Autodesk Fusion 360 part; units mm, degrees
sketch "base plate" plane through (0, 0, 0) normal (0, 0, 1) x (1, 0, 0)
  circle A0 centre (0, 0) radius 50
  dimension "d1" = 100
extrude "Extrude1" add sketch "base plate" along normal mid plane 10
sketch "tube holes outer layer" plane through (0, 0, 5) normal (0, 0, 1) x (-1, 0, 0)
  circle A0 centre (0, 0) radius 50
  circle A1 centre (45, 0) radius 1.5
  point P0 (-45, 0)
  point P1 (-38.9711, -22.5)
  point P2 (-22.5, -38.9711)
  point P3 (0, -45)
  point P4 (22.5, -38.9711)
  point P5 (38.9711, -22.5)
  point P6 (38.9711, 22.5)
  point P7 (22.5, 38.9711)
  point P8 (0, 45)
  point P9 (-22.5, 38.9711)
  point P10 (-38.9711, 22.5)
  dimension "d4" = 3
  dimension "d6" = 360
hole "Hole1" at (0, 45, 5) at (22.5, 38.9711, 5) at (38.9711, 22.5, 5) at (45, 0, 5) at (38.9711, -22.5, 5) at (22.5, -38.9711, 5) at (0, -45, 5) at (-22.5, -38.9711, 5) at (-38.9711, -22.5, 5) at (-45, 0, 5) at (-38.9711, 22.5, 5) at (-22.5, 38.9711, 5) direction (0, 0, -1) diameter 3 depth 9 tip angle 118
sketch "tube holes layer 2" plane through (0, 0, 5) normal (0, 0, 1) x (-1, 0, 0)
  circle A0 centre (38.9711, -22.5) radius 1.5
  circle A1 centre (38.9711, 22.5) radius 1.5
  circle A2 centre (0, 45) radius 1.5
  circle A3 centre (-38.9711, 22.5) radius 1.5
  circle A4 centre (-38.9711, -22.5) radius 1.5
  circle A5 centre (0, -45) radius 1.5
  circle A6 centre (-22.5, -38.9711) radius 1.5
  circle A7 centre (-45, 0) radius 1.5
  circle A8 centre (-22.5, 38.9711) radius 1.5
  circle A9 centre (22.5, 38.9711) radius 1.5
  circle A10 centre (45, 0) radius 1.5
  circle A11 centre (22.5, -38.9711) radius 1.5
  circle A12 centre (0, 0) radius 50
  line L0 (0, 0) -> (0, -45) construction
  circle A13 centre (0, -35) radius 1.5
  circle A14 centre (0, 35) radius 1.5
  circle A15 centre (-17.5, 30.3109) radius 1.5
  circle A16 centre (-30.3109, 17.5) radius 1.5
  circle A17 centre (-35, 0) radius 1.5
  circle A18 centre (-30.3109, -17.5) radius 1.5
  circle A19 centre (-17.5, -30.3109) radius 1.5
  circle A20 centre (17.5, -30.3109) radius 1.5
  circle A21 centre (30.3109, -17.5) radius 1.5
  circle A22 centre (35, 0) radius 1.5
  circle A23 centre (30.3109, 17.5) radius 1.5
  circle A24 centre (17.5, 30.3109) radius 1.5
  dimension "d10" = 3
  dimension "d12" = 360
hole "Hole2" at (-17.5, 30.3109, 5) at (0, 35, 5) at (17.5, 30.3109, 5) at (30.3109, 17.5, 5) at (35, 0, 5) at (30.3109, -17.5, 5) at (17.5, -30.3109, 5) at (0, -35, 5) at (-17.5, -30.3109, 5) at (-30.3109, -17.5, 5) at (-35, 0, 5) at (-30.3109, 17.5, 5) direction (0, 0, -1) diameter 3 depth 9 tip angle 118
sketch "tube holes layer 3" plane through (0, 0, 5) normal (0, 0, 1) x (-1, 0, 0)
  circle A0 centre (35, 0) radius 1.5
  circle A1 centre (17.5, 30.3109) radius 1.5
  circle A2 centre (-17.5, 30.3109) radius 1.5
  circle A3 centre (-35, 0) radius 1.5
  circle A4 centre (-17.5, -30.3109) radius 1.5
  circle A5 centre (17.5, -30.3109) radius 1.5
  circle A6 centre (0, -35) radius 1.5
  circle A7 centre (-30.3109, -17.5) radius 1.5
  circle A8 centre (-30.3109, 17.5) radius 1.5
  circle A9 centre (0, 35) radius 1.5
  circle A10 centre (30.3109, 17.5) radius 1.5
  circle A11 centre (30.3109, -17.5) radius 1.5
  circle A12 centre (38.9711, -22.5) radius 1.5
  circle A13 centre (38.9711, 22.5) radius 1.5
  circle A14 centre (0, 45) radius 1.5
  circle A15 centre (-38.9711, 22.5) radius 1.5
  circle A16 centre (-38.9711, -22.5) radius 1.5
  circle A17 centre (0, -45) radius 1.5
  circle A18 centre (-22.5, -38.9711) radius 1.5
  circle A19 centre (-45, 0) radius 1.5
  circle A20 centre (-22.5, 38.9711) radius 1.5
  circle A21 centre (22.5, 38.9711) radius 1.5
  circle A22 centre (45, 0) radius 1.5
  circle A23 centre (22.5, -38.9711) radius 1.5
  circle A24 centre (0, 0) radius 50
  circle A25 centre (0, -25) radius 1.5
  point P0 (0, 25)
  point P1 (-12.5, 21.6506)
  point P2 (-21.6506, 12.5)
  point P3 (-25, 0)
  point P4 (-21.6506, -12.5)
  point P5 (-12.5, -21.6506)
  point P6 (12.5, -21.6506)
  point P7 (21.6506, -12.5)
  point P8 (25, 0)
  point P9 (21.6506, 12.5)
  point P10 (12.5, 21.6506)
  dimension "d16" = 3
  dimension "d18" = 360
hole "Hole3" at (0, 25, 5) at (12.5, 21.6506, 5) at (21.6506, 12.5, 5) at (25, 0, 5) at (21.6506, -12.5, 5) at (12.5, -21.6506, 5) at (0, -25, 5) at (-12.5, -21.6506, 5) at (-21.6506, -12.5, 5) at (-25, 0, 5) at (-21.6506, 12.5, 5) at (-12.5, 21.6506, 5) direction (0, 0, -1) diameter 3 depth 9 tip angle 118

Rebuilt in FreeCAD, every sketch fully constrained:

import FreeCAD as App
import Part
import Sketcher

V = App.Vector

doc = App.newDocument("Part")
params = doc.addObject("Spreadsheet::Sheet", "Params")
for row, (alias, value) in enumerate([
    ("sketch1_diameter", "100 mm"),
    ("pad1_length", "10 mm"),
    ("sketch2_diameter", "3 mm"),
    ("hole_diameter", "3 mm"),
    ("hole_depth", "9 mm"),
    ("sketch3_diameter", "3 mm"),
    ("hole2_diameter", "3 mm"),
    ("hole2_depth", "9 mm"),
    ("sketch4_diameter", "3 mm"),
    ("hole3_diameter", "3 mm"),
    ("hole3_depth", "9 mm"),
], start=1):
    params.set(f"A{row}", alias)
    params.set(f"B{row}", "=" + value)
    params.setAlias(f"B{row}", alias)

body = doc.addObject("PartDesign::Body", "Body")

# Sketch on XY plane
sketch1 = body.newObject("Sketcher::SketchObject", "Sketch")
sketch1.AttachmentSupport = (doc.getObject("XY_Plane"), [""])
sketch1.MapMode = "FlatFace"
sketch1.addGeometry(Part.Circle(V(0, 0, 0), V(0, 0, 1), 50), False)
sketch1.addConstraint([
    Sketcher.Constraint("Coincident", 0, 3, -1, 1),
    Sketcher.Constraint("Diameter", 0, 100.0),
])
sketch1.setExpression("Constraints[1]", "Params.sketch1_diameter")
pad1 = body.newObject("PartDesign::Pad", "Pad")
pad1.Profile = sketch1
pad1.setExpression("Length", "Params.pad1_length")
pad1.Midplane = True

# Sketch on XY plane
sketch2 = body.newObject("Sketcher::SketchObject", "Sketch001")
sketch2.AttachmentSupport = (doc.getObject("XY_Plane"), [""])
sketch2.MapMode = "FlatFace"
sketch2.AttachmentOffset = App.Placement(V(0, 0, 5), App.Rotation())
sketch2.addGeometry([
    Part.Circle(V(0, 45, 0), V(0, 0, 1), 1.5),  # 0
    Part.Circle(V(22.5, 39, 0), V(0, 0, 1), 1.5),  # 1
    Part.Circle(V(39, 22.5, 0), V(0, 0, 1), 1.5),  # 2
    Part.Circle(V(45, 0, 0), V(0, 0, 1), 1.5),  # 3
    Part.Circle(V(39, -22.5, 0), V(0, 0, 1), 1.5),  # 4
    Part.Circle(V(22.5, -39, 0), V(0, 0, 1), 1.5),  # 5
    Part.Circle(V(0, -45, 0), V(0, 0, 1), 1.5),  # 6
    Part.Circle(V(-22.5, -39, 0), V(0, 0, 1), 1.5),  # 7
    Part.Circle(V(-39, -22.5, 0), V(0, 0, 1), 1.5),  # 8
    Part.Circle(V(-45, 0, 0), V(0, 0, 1), 1.5),  # 9
    Part.Circle(V(-39, 22.5, 0), V(0, 0, 1), 1.5),  # 10
    Part.Circle(V(-22.5, 39, 0), V(0, 0, 1), 1.5),  # 11
], False)
sketch2.addConstraint([
    Sketcher.Constraint("Equal", 0, 1),
    Sketcher.Constraint("Equal", 1, 2),
    Sketcher.Constraint("Equal", 2, 3),
    Sketcher.Constraint("Equal", 3, 4),
    Sketcher.Constraint("Equal", 4, 5),
    Sketcher.Constraint("Equal", 5, 6),
    Sketcher.Constraint("Equal", 6, 7),
    Sketcher.Constraint("Equal", 7, 8),
    Sketcher.Constraint("Equal", 8, 9),
    Sketcher.Constraint("Equal", 9, 10),
    Sketcher.Constraint("Equal", 10, 11),
    Sketcher.Constraint("Symmetric", 0, 3, 6, 3, -1, 1),
    Sketcher.Constraint("Symmetric", 1, 3, 7, 3, -1, 1),
    Sketcher.Constraint("Symmetric", 2, 3, 8, 3, -1, 1),
    Sketcher.Constraint("Symmetric", 3, 3, 9, 3, -1, 1),
    Sketcher.Constraint("Symmetric", 4, 3, 10, 3, -1, 1),
    Sketcher.Constraint("Symmetric", 5, 3, 11, 3, -1, 1),
    Sketcher.Constraint("Symmetric", 5, 3, 7, 3, -2),
    Sketcher.Constraint("Symmetric", 4, 3, 8, 3, -2),
    Sketcher.Constraint("PointOnObject", 0, 3, -2),
    Sketcher.Constraint("PointOnObject", 3, 3, -1),
    Sketcher.Constraint("Diameter", 0, 3.0),
    Sketcher.Constraint("DistanceY", -1, 1, 0, 3, 45.0),
    Sketcher.Constraint("DistanceX", -1, 1, 3, 3, 45.0),
    Sketcher.Constraint("DistanceY", 4, 3, 2, 3, 45.0),
    Sketcher.Constraint("DistanceX", 7, 3, 5, 3, 45.0),
    Sketcher.Constraint("DistanceY", -1, 1, 1, 3, 38.971),
    Sketcher.Constraint("DistanceX", -1, 1, 2, 3, 38.971),
])
sketch2.setExpression("Constraints[21]", "Params.sketch2_diameter")
doc.recompute()
hole = body.newObject("PartDesign::Hole", "Hole")
hole.Profile = sketch2
hole.ThreadType = "None"
hole.setExpression("Diameter", "Params.hole_diameter")
hole.DepthType = "Dimension"
hole.setExpression("Depth", "Params.hole_depth")
hole.DrillPoint = "Angled"
hole.DrillPointAngle = 118

# Sketch on XY plane
sketch3 = body.newObject("Sketcher::SketchObject", "Sketch002")
sketch3.AttachmentSupport = (doc.getObject("XY_Plane"), [""])
sketch3.MapMode = "FlatFace"
sketch3.AttachmentOffset = App.Placement(V(0, 0, 5), App.Rotation())
sketch3.addGeometry([
    Part.Circle(V(-17.5, 30.3, 0), V(0, 0, 1), 1.5),  # 0
    Part.Circle(V(0, 35, 0), V(0, 0, 1), 1.5),  # 1
    Part.Circle(V(17.5, 30.3, 0), V(0, 0, 1), 1.5),  # 2
    Part.Circle(V(30.3, 17.5, 0), V(0, 0, 1), 1.5),  # 3
    Part.Circle(V(35, 0, 0), V(0, 0, 1), 1.5),  # 4
    Part.Circle(V(30.3, -17.5, 0), V(0, 0, 1), 1.5),  # 5
    Part.Circle(V(17.5, -30.3, 0), V(0, 0, 1), 1.5),  # 6
    Part.Circle(V(0, -35, 0), V(0, 0, 1), 1.5),  # 7
    Part.Circle(V(-17.5, -30.3, 0), V(0, 0, 1), 1.5),  # 8
    Part.Circle(V(-30.3, -17.5, 0), V(0, 0, 1), 1.5),  # 9
    Part.Circle(V(-35, 0, 0), V(0, 0, 1), 1.5),  # 10
    Part.Circle(V(-30.3, 17.5, 0), V(0, 0, 1), 1.5),  # 11
], False)
sketch3.addConstraint([
    Sketcher.Constraint("Equal", 0, 1),
    Sketcher.Constraint("Equal", 1, 2),
    Sketcher.Constraint("Equal", 2, 3),
    Sketcher.Constraint("Equal", 3, 4),
    Sketcher.Constraint("Equal", 4, 5),
    Sketcher.Constraint("Equal", 5, 6),
    Sketcher.Constraint("Equal", 6, 7),
    Sketcher.Constraint("Equal", 7, 8),
    Sketcher.Constraint("Equal", 8, 9),
    Sketcher.Constraint("Equal", 9, 10),
    Sketcher.Constraint("Equal", 10, 11),
    Sketcher.Constraint("Symmetric", 0, 3, 6, 3, -1, 1),
    Sketcher.Constraint("Symmetric", 1, 3, 7, 3, -1, 1),
    Sketcher.Constraint("Symmetric", 2, 3, 8, 3, -1, 1),
    Sketcher.Constraint("Symmetric", 3, 3, 9, 3, -1, 1),
    Sketcher.Constraint("Symmetric", 4, 3, 10, 3, -1, 1),
    Sketcher.Constraint("Symmetric", 5, 3, 11, 3, -1, 1),
    Sketcher.Constraint("Symmetric", 0, 3, 2, 3, -2),
    Sketcher.Constraint("Symmetric", 5, 3, 9, 3, -2),
    Sketcher.Constraint("PointOnObject", 1, 3, -2),
    Sketcher.Constraint("PointOnObject", 4, 3, -1),
    Sketcher.Constraint("Diameter", 0, 3.0),
    Sketcher.Constraint("DistanceY", -1, 1, 1, 3, 35.0),
    Sketcher.Constraint("DistanceX", -1, 1, 4, 3, 35.0),
    Sketcher.Constraint("DistanceX", 0, 3, 2, 3, 35.0),
    Sketcher.Constraint("DistanceY", 5, 3, 3, 3, 35.0),
    Sketcher.Constraint("DistanceY", -1, 1, 0, 3, 30.311),
    Sketcher.Constraint("DistanceX", -1, 1, 3, 3, 30.311),
])
sketch3.setExpression("Constraints[21]", "Params.sketch3_diameter")
doc.recompute()
hole2 = body.newObject("PartDesign::Hole", "Hole001")
hole2.Profile = sketch3
hole2.ThreadType = "None"
hole2.setExpression("Diameter", "Params.hole2_diameter")
hole2.DepthType = "Dimension"
hole2.setExpression("Depth", "Params.hole2_depth")
hole2.DrillPoint = "Angled"
hole2.DrillPointAngle = 118

# Sketch on XY plane
sketch4 = body.newObject("Sketcher::SketchObject", "Sketch003")
sketch4.AttachmentSupport = (doc.getObject("XY_Plane"), [""])
sketch4.MapMode = "FlatFace"
sketch4.AttachmentOffset = App.Placement(V(0, 0, 5), App.Rotation())
sketch4.addGeometry([
    Part.Circle(V(0, 25, 0), V(0, 0, 1), 1.5),  # 0
    Part.Circle(V(12.5, 21.7, 0), V(0, 0, 1), 1.5),  # 1
    Part.Circle(V(21.7, 12.5, 0), V(0, 0, 1), 1.5),  # 2
    Part.Circle(V(25, 0, 0), V(0, 0, 1), 1.5),  # 3
    Part.Circle(V(21.7, -12.5, 0), V(0, 0, 1), 1.5),  # 4
    Part.Circle(V(12.5, -21.7, 0), V(0, 0, 1), 1.5),  # 5
    Part.Circle(V(0, -25, 0), V(0, 0, 1), 1.5),  # 6
    Part.Circle(V(-12.5, -21.7, 0), V(0, 0, 1), 1.5),  # 7
    Part.Circle(V(-21.7, -12.5, 0), V(0, 0, 1), 1.5),  # 8
    Part.Circle(V(-25, 0, 0), V(0, 0, 1), 1.5),  # 9
    Part.Circle(V(-21.7, 12.5, 0), V(0, 0, 1), 1.5),  # 10
    Part.Circle(V(-12.5, 21.7, 0), V(0, 0, 1), 1.5),  # 11
], False)
sketch4.addConstraint([
    Sketcher.Constraint("Equal", 0, 1),
    Sketcher.Constraint("Equal", 1, 2),
    Sketcher.Constraint("Equal", 2, 3),
    Sketcher.Constraint("Equal", 3, 4),
    Sketcher.Constraint("Equal", 4, 5),
    Sketcher.Constraint("Equal", 5, 6),
    Sketcher.Constraint("Equal", 6, 7),
    Sketcher.Constraint("Equal", 7, 8),
    Sketcher.Constraint("Equal", 8, 9),
    Sketcher.Constraint("Equal", 9, 10),
    Sketcher.Constraint("Equal", 10, 11),
    Sketcher.Constraint("Symmetric", 0, 3, 6, 3, -1, 1),
    Sketcher.Constraint("Symmetric", 1, 3, 7, 3, -1, 1),
    Sketcher.Constraint("Symmetric", 2, 3, 8, 3, -1, 1),
    Sketcher.Constraint("Symmetric", 3, 3, 9, 3, -1, 1),
    Sketcher.Constraint("Symmetric", 4, 3, 10, 3, -1, 1),
    Sketcher.Constraint("Symmetric", 5, 3, 11, 3, -1, 1),
    Sketcher.Constraint("Symmetric", 5, 3, 7, 3, -2),
    Sketcher.Constraint("Symmetric", 4, 3, 8, 3, -2),
    Sketcher.Constraint("PointOnObject", 0, 3, -2),
    Sketcher.Constraint("PointOnObject", 3, 3, -1),
    Sketcher.Constraint("Diameter", 0, 3.0),
    Sketcher.Constraint("DistanceY", -1, 1, 0, 3, 25.0),
    Sketcher.Constraint("DistanceX", -1, 1, 3, 3, 25.0),
    Sketcher.Constraint("DistanceY", 4, 3, 2, 3, 25.0),
    Sketcher.Constraint("DistanceX", 7, 3, 5, 3, 25.0),
    Sketcher.Constraint("DistanceY", -1, 1, 1, 3, 21.6506),
    Sketcher.Constraint("DistanceX", -1, 1, 2, 3, 21.6506),
])
sketch4.setExpression("Constraints[21]", "Params.sketch4_diameter")
doc.recompute()
hole3 = body.newObject("PartDesign::Hole", "Hole002")
hole3.Profile = sketch4
hole3.ThreadType = "None"
hole3.setExpression("Diameter", "Params.hole3_diameter")
hole3.DepthType = "Dimension"
hole3.setExpression("Depth", "Params.hole3_depth")
hole3.DrillPoint = "Angled"
hole3.DrillPointAngle = 118

doc.recompute()
